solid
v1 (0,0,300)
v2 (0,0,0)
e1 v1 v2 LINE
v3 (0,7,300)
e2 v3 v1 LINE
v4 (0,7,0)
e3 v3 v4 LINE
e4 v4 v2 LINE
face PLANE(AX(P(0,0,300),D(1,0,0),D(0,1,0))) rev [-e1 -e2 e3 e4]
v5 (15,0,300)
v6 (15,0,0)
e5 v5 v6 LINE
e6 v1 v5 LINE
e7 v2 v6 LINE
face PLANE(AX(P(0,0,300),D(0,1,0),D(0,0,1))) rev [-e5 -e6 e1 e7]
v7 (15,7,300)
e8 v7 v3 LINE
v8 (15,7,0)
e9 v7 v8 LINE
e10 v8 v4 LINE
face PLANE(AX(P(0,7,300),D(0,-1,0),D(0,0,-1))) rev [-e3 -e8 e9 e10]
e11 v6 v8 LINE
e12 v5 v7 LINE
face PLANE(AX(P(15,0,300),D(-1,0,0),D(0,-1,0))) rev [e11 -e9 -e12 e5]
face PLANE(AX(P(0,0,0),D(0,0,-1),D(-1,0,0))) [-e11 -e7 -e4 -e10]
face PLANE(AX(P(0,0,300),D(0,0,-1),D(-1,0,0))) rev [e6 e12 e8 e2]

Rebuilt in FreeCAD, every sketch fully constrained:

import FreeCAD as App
import Part
import Sketcher

V = App.Vector

doc = App.newDocument("Part")
params = doc.addObject("Spreadsheet::Sheet", "Params")
for row, (alias, value) in enumerate([
    ("sketch1_width", "15 mm"),
    ("sketch1_height", "7 mm"),
    ("pad1_length", "300 mm"),
], start=1):
    params.set(f"A{row}", alias)
    params.set(f"B{row}", "=" + value)
    params.setAlias(f"B{row}", alias)

body = doc.addObject("PartDesign::Body", "Body")

# Sketch on XY plane
sketch1 = body.newObject("Sketcher::SketchObject", "Sketch")
sketch1.AttachmentSupport = (doc.getObject("XY_Plane"), [""])
sketch1.MapMode = "FlatFace"
sketch1.addGeometry([
    Part.LineSegment(V(0, 7, 0), V(0, 0, 0)),
    Part.LineSegment(V(0, 0, 0), V(15, 0, 0)),
    Part.LineSegment(V(15, 0, 0), V(15, 7, 0)),
    Part.LineSegment(V(15, 7, 0), V(0, 7, 0)),
], False)
sketch1.addConstraint([
    Sketcher.Constraint("Coincident", 0, 2, 1, 1),
    Sketcher.Constraint("Coincident", 1, 2, 2, 1),
    Sketcher.Constraint("Coincident", 2, 2, 3, 1),
    Sketcher.Constraint("Coincident", 3, 2, 0, 1),
    Sketcher.Constraint("Vertical", 0),
    Sketcher.Constraint("Horizontal", 1),
    Sketcher.Constraint("Vertical", 2),
    Sketcher.Constraint("Horizontal", 3),
    Sketcher.Constraint("Coincident", 0, 2, -1, 1),
    Sketcher.Constraint("DistanceX", 1, 1, 1, 2, 15.0),
    Sketcher.Constraint("DistanceY", 0, 2, 0, 1, 7.0),
])
sketch1.setExpression("Constraints[9]", "Params.sketch1_width")
sketch1.setExpression("Constraints[10]", "Params.sketch1_height")
pad1 = body.newObject("PartDesign::Pad", "Pad")
pad1.Profile = sketch1
pad1.setExpression("Length", "Params.pad1_length")

doc.recompute()
